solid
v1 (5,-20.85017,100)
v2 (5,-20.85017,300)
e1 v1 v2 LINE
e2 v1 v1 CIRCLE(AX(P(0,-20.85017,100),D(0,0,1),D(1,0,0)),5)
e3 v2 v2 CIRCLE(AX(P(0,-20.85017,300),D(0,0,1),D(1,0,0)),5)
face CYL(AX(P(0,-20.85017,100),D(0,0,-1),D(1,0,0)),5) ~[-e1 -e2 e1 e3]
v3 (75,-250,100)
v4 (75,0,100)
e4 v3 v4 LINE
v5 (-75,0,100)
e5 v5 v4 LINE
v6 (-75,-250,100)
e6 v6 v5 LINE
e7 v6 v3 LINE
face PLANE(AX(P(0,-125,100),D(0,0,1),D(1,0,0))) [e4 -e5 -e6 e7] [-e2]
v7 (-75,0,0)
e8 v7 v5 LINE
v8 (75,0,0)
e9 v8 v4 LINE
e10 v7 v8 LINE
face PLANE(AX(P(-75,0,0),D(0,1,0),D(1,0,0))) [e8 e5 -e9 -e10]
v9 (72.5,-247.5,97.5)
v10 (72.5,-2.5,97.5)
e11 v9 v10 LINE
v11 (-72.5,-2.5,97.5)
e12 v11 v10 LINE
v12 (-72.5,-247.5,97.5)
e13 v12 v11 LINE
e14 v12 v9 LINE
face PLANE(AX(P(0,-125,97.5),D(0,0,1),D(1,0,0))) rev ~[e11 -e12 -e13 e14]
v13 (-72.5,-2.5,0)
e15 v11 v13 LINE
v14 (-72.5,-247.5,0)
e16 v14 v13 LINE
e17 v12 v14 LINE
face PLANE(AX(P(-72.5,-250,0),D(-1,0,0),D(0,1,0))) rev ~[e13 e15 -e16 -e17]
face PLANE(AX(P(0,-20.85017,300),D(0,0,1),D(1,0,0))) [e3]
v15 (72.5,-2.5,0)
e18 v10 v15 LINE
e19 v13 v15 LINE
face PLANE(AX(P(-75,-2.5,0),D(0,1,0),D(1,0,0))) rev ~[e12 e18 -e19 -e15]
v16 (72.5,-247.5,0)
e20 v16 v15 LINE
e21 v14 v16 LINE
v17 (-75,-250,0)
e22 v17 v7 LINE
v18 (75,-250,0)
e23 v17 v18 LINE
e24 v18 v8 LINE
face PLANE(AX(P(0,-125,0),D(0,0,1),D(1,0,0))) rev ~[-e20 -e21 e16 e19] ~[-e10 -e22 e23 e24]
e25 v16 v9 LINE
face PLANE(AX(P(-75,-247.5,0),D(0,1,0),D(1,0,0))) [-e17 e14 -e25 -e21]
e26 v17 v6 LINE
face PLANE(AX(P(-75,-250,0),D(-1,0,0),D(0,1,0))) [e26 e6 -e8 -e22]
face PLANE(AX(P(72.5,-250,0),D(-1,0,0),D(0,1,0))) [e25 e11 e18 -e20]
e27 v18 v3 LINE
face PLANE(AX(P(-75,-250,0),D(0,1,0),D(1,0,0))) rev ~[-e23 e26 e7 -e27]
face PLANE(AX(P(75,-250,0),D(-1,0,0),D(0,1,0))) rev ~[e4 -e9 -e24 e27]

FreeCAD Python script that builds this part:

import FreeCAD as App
import Part
import Sketcher

V = App.Vector
Q = App.Units.Quantity


def faces_at(feature, points):
    """Names of the faces that lie closest to the given points."""
    faces = feature.Shape.Faces
    near = lambda p: min(range(len(faces)), key=lambda i: faces[i].distToShape(Part.Vertex(*p))[0])
    return sorted({f"Face{near(p) + 1}" for p in points})

doc = App.newDocument("Part")
body = doc.addObject("PartDesign::Body", "Body")

# Sketch on XY plane
sketch1 = body.newObject("Sketcher::SketchObject", "Sketch")
sketch1.AttachmentSupport = (doc.getObject("XY_Plane"), [""])
sketch1.MapMode = "FlatFace"
sketch1.addGeometry(Part.LineSegment(V(-75, 0, 0), V(-75, -250, 0)), False)
sketch1.addGeometry(Part.LineSegment(V(-75, -250, 0), V(75, -250, 0)), False)
sketch1.addGeometry(Part.LineSegment(V(75, -250, 0), V(75, 0, 0)), False)
sketch1.addGeometry(Part.LineSegment(V(75, 0, 0), V(-75, 0, 0)), False)
sketch1.addConstraint(Sketcher.Constraint("Coincident", 0, 2, 1, 1))
sketch1.addConstraint(Sketcher.Constraint("Coincident", 1, 2, 2, 1))
sketch1.addConstraint(Sketcher.Constraint("Coincident", 2, 2, 3, 1))
sketch1.addConstraint(Sketcher.Constraint("Coincident", 3, 2, 0, 1))
sketch1.addConstraint(Sketcher.Constraint("Vertical", 0))
sketch1.addConstraint(Sketcher.Constraint("Horizontal", 1))
sketch1.addConstraint(Sketcher.Constraint("Vertical", 2))
sketch1.addConstraint(Sketcher.Constraint("Horizontal", 3))
sketch1.addConstraint(Sketcher.Constraint("Symmetric", 2, 2, 3, 2, -1, 1))
sketch1.addConstraint(Sketcher.Constraint("DistanceX", 1, 1, 1, 2, Q("150 mm")))
sketch1.addConstraint(Sketcher.Constraint("DistanceY", 0, 2, 0, 1, Q("250 mm")))
pad1 = body.newObject("PartDesign::Pad", "Pad")
pad1.Profile = sketch1
pad1.Length = 100
doc.recompute()

thickness = body.newObject("PartDesign::Thickness", "Thickness")
thickness.Base = (pad1, faces_at(pad1, [(0, -125, 0)]))
thickness.Value = 2.5
thickness.Reversed = True
thickness.Join = "Arc"

# Sketch on XY plane
sketch2 = body.newObject("Sketcher::SketchObject", "Sketch001")
sketch2.AttachmentSupport = (doc.getObject("XY_Plane"), [""])
sketch2.MapMode = "FlatFace"
sketch2.AttachmentOffset = App.Placement(V(0, 0, 100), App.Rotation())
sketch2.addGeometry(Part.Circle(V(0, -20.85017, 0), V(0, 0, 1), 5), False)
sketch2.addConstraint(Sketcher.Constraint("PointOnObject", 0, 3, -2))
sketch2.addConstraint(Sketcher.Constraint("Diameter", 0, Q("10 mm")))
sketch2.addConstraint(Sketcher.Constraint("DistanceY", 0, 3, -1, 1, Q("20.85017 mm")))
pad2 = body.newObject("PartDesign::Pad", "Pad001")
pad2.Profile = sketch2
pad2.Length = 200

doc.recompute()
